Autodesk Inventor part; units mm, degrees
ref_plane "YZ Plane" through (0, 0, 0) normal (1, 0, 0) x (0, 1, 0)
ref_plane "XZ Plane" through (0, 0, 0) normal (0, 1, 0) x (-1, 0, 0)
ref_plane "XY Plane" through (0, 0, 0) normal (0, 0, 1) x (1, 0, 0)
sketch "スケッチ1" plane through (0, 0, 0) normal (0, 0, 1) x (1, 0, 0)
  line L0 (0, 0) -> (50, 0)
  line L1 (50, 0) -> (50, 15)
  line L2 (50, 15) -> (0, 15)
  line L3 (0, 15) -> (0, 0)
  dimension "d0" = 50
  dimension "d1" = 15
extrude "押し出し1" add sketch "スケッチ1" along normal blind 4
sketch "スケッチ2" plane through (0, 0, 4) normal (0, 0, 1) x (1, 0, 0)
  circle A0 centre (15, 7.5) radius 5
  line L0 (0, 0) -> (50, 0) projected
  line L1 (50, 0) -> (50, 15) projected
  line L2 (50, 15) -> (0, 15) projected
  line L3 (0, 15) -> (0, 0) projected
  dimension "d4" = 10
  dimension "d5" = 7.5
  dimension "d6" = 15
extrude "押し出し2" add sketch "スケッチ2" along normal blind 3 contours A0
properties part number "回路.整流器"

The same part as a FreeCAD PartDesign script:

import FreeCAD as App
import Part
import Sketcher

V = App.Vector
Q = App.Units.Quantity


def add_polygon(sketch, points):
    """Adds a closed chain of lines whose ends are joined by coincident constraints."""
    first, n = sketch.GeometryCount, len(points)
    for a, b in zip(points, points[1:] + points[:1]):
        sketch.addGeometry(Part.LineSegment(App.Vector(*a, 0), App.Vector(*b, 0)), False)
    for i in range(n):
        sketch.addConstraint(Sketcher.Constraint("Coincident", first + i, 2, first + (i + 1) % n, 1))

doc = App.newDocument("Part")
body = doc.addObject("PartDesign::Body", "Body")

# Sketch on XY plane
sketch1 = body.newObject("Sketcher::SketchObject", "Sketch")
sketch1.AttachmentSupport = (doc.getObject("XY_Plane"), [""])
sketch1.MapMode = "FlatFace"
add_polygon(sketch1, [(0, 15), (0, 0), (50, 0), (50, 15)])  # lines 0-3
sketch1.addConstraint([
    Sketcher.Constraint("Vertical", 0),
    Sketcher.Constraint("Horizontal", 1),
    Sketcher.Constraint("Vertical", 2),
    Sketcher.Constraint("Horizontal", 3),
    Sketcher.Constraint("Coincident", 0, 2, -1, 1),
    Sketcher.Constraint("DistanceX", 1, 1, 1, 2, Q("50 mm")),
    Sketcher.Constraint("DistanceY", 0, 2, 0, 1, Q("15 mm")),
])
pad1 = body.newObject("PartDesign::Pad", "Pad")
pad1.Profile = sketch1
pad1.Length = 4

# Sketch on XY plane
sketch2 = body.newObject("Sketcher::SketchObject", "Sketch001")
sketch2.AttachmentSupport = (doc.getObject("XY_Plane"), [""])
sketch2.MapMode = "FlatFace"
sketch2.AttachmentOffset = App.Placement(V(0, 0, 4), App.Rotation())
sketch2.addGeometry(Part.Circle(V(15, 8, 0), V(0, 0, 1), 5), False)
sketch2.addConstraint([
    Sketcher.Constraint("Diameter", 0, Q("10 mm")),
    Sketcher.Constraint("DistanceX", -1, 1, 0, 3, Q("15 mm")),
    Sketcher.Constraint("DistanceY", -1, 1, 0, 3, Q("7.5 mm")),
])
pad2 = body.newObject("PartDesign::Pad", "Pad001")
pad2.Profile = sketch2
pad2.Length = 3

doc.recompute()
